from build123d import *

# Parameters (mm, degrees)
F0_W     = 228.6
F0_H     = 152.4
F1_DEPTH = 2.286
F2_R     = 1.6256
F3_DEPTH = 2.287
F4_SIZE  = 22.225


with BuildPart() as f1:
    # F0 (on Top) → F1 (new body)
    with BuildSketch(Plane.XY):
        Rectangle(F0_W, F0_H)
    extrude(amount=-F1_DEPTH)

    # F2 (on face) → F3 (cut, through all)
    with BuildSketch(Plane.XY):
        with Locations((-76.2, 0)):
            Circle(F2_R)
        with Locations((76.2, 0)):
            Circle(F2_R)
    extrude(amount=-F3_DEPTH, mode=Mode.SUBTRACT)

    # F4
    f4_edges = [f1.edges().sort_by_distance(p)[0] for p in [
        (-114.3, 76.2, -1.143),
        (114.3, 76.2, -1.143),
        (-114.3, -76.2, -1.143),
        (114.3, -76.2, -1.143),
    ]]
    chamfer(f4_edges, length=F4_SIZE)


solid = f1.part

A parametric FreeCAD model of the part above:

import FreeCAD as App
import Part
import Sketcher

V = App.Vector
Q = App.Units.Quantity


def edges_at(feature, points):
    """Names of the edges that pass closest to the given points."""
    edges = feature.Shape.Edges
    near = lambda p: min(range(len(edges)), key=lambda i: edges[i].distToShape(Part.Vertex(*p))[0])
    return sorted({f"Edge{near(p) + 1}" for p in points})


def add_polygon(sketch, points):
    """Adds a closed chain of lines whose ends are joined by coincident constraints."""
    first, n = sketch.GeometryCount, len(points)
    for a, b in zip(points, points[1:] + points[:1]):
        sketch.addGeometry(Part.LineSegment(App.Vector(*a, 0), App.Vector(*b, 0)), False)
    for i in range(n):
        sketch.addConstraint(Sketcher.Constraint("Coincident", first + i, 2, first + (i + 1) % n, 1))

doc = App.newDocument("Part")
params = doc.addObject("Spreadsheet::Sheet", "Params")
for row, (alias, value) in enumerate([
    ("sketch1_width", "9 in"),
    ("sketch1_height", "6 in"),
    ("pad1_length", "0.09 in"),
    ("sketch2_diameter", "0.128 in"),
    ("chamfer_size", "0.875 in"),
], start=1):
    params.set(f"A{row}", alias)
    params.set(f"B{row}", "=" + value)
    params.setAlias(f"B{row}", alias)

body = doc.addObject("PartDesign::Body", "Body")

# Sketch on XY plane
sketch1 = body.newObject("Sketcher::SketchObject", "Sketch")
sketch1.AttachmentSupport = (doc.getObject("XY_Plane"), [""])
sketch1.MapMode = "FlatFace"
add_polygon(sketch1, [(-114.3, 76.2), (-114.3, -76.2), (114.3, -76.2), (114.3, 76.2)])  # lines 0-3
sketch1.addConstraint(Sketcher.Constraint("Vertical", 0))
sketch1.addConstraint(Sketcher.Constraint("Horizontal", 1))
sketch1.addConstraint(Sketcher.Constraint("Vertical", 2))
sketch1.addConstraint(Sketcher.Constraint("Horizontal", 3))
sketch1.addConstraint(Sketcher.Constraint("Symmetric", 0, 2, 2, 2, -1, 1))
sketch1.addConstraint(Sketcher.Constraint("DistanceX", 1, 1, 1, 2, Q("9 in")))
sketch1.addConstraint(Sketcher.Constraint("DistanceY", 0, 2, 0, 1, Q("6 in")))
sketch1.setExpression("Constraints[9]", "Params.sketch1_width")
sketch1.setExpression("Constraints[10]", "Params.sketch1_height")
pad1 = body.newObject("PartDesign::Pad", "Pad")
pad1.Profile = sketch1
pad1.setExpression("Length", "Params.pad1_length")
pad1.Reversed = True

# Sketch on XY plane
sketch2 = body.newObject("Sketcher::SketchObject", "Sketch001")
sketch2.AttachmentSupport = (doc.getObject("XY_Plane"), [""])
sketch2.MapMode = "FlatFace"
sketch2.addGeometry(Part.Circle(V(-76.2, 0, 0), V(0, 0, 1), 1.6256), False)
sketch2.addGeometry(Part.Circle(V(76.2, 0, 0), V(0, 0, 1), 1.6256), False)
sketch2.addConstraint(Sketcher.Constraint("Equal", 0, 1))
sketch2.addConstraint(Sketcher.Constraint("Symmetric", 0, 3, 1, 3, -1, 1))
sketch2.addConstraint(Sketcher.Constraint("PointOnObject", 0, 3, -1))
sketch2.addConstraint(Sketcher.Constraint("Diameter", 0, Q("0.128 in")))
sketch2.addConstraint(Sketcher.Constraint("DistanceX", 0, 3, -1, 1, Q("3 in")))
sketch2.setExpression("Constraints[3]", "Params.sketch2_diameter")
pocket1 = body.newObject("PartDesign::Pocket", "Pocket")
pocket1.Profile = sketch2
pocket1.Type = "ThroughAll"
doc.recompute()

chamfer = body.newObject("PartDesign::Chamfer", "Chamfer")
chamfer.Base = (pocket1, edges_at(pocket1, [
    (-114.3, 76.2, -1.143),
    (114.3, 76.2, -1.143),
    (-114.3, -76.2, -1.143),
    (114.3, -76.2, -1.143),
]))
chamfer.setExpression("Size", "Params.chamfer_size")

doc.recompute()
